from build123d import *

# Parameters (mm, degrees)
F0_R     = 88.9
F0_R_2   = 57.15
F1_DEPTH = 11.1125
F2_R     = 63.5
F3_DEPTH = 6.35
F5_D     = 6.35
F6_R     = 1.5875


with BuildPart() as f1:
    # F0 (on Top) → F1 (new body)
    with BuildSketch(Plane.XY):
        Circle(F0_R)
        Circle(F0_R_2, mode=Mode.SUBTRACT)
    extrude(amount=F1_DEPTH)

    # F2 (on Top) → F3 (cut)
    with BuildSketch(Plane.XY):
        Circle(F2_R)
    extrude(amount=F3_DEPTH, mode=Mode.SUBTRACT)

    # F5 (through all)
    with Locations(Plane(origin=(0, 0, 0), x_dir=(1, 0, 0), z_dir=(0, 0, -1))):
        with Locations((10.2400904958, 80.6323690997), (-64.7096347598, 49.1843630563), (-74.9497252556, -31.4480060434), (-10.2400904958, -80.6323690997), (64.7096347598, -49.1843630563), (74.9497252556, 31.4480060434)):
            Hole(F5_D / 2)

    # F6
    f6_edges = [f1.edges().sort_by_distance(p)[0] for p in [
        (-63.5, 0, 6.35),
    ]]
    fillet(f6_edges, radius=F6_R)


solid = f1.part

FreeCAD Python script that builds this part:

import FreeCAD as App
import Part
import Sketcher

V = App.Vector
Q = App.Units.Quantity


def edges_at(feature, points):
    """Names of the edges that pass closest to the given points."""
    edges = feature.Shape.Edges
    near = lambda p: min(range(len(edges)), key=lambda i: edges[i].distToShape(Part.Vertex(*p))[0])
    return sorted({f"Edge{near(p) + 1}" for p in points})

doc = App.newDocument("Part")
body = doc.addObject("PartDesign::Body", "Body")

# Sketch on XY plane
sketch1 = doc.addObject("Sketcher::SketchObject", "Sketch")
body.addObject(sketch1)
sketch1.AttachmentSupport = (doc.XY_Plane, [""])
sketch1.MapMode = "FlatFace"
sketch1.addGeometry(Part.Circle(V(0, 0, 0), V(0, 0, 1), 88.9), False)
sketch1.addGeometry(Part.Circle(V(0, 0, 0), V(0, 0, 1), 57.15), False)
sketch1.addConstraint(Sketcher.Constraint("Coincident", 0, 3, -1, 1))
sketch1.addConstraint(Sketcher.Constraint("Coincident", 1, 3, -1, 1))
sketch1.addConstraint(Sketcher.Constraint("Diameter", 0, Q("7 in")))
sketch1.addConstraint(Sketcher.Constraint("Diameter", 1, Q("4.5 in")))
pad1 = doc.addObject("PartDesign::Pad", "Pad")
body.addObject(pad1)
pad1.Profile = sketch1
pad1.Length = Q("0.4375 in")

# Sketch on XY plane
sketch2 = doc.addObject("Sketcher::SketchObject", "Sketch001")
body.addObject(sketch2)
sketch2.AttachmentSupport = (doc.XY_Plane, [""])
sketch2.MapMode = "FlatFace"
sketch2.addGeometry(Part.Circle(V(0, 0, 0), V(0, 0, 1), 63.5), False)
sketch2.addConstraint(Sketcher.Constraint("Coincident", 0, 3, -1, 1))
sketch2.addConstraint(Sketcher.Constraint("Diameter", 0, Q("5 in")))
pocket1 = doc.addObject("PartDesign::Pocket", "Pocket")
body.addObject(pocket1)
pocket1.Profile = sketch2
pocket1.Length = Q("0.25 in")
pocket1.Reversed = True

# Sketch on XY plane
sketch3 = doc.addObject("Sketcher::SketchObject", "Sketch002")
body.addObject(sketch3)
sketch3.AttachmentSupport = (doc.XY_Plane, [""])
sketch3.MapMode = "FlatFace"
sketch3.addGeometry(Part.Circle(V(10.24009, -80.632369, 0), V(0, 0, 1), 3.175), False)
sketch3.addGeometry(Part.Circle(V(-64.709635, -49.184363, 0), V(0, 0, 1), 3.175), False)
sketch3.addGeometry(Part.Circle(V(-74.949725, 31.448006, 0), V(0, 0, 1), 3.175), False)
sketch3.addGeometry(Part.Circle(V(-10.24009, 80.632369, 0), V(0, 0, 1), 3.175), False)
sketch3.addGeometry(Part.Circle(V(64.709635, 49.184363, 0), V(0, 0, 1), 3.175), False)
sketch3.addGeometry(Part.Circle(V(74.949725, -31.448006, 0), V(0, 0, 1), 3.175), False)
sketch3.addConstraint(Sketcher.Constraint("Equal", 0, 1))
sketch3.addConstraint(Sketcher.Constraint("Equal", 1, 2))
sketch3.addConstraint(Sketcher.Constraint("Equal", 2, 3))
sketch3.addConstraint(Sketcher.Constraint("Equal", 3, 4))
sketch3.addConstraint(Sketcher.Constraint("Equal", 4, 5))
sketch3.addConstraint(Sketcher.Constraint("Symmetric", 0, 3, 3, 3, -1, 1))
sketch3.addConstraint(Sketcher.Constraint("Symmetric", 1, 3, 4, 3, -1, 1))
sketch3.addConstraint(Sketcher.Constraint("Symmetric", 2, 3, 5, 3, -1, 1))
sketch3.addConstraint(Sketcher.Constraint("Diameter", 0, Q("0.25 in")))
sketch3.addConstraint(Sketcher.Constraint("DistanceX", 2, 3, 4, 3, Q("5.4984 in")))
sketch3.addConstraint(Sketcher.Constraint("DistanceX", -1, 1, 0, 3, 10.24009))
sketch3.addConstraint(Sketcher.Constraint("DistanceY", 0, 3, -1, 1, 80.632369))
sketch3.addConstraint(Sketcher.Constraint("DistanceX", 2, 3, 1, 3, 10.24009))
sketch3.addConstraint(Sketcher.Constraint("DistanceY", 1, 3, 2, 3, 80.632369))
sketch3.addConstraint(Sketcher.Constraint("DistanceY", 1, 3, -1, 1, 49.184363))
doc.recompute()
hole = doc.addObject("PartDesign::Hole", "Hole")
body.addObject(hole)
hole.Profile = sketch3
hole.ThreadType = "None"
hole.Diameter = Q("0.25 in")
hole.DepthType = "ThroughAll"
hole.Reversed = True
doc.recompute()

fillet = doc.addObject("PartDesign::Fillet", "Fillet")
body.addObject(fillet)
fillet.Base = (hole, edges_at(hole, [(-63.5, 0, 6.35)]))
fillet.Radius = Q("0.0625 in")

doc.recompute()
